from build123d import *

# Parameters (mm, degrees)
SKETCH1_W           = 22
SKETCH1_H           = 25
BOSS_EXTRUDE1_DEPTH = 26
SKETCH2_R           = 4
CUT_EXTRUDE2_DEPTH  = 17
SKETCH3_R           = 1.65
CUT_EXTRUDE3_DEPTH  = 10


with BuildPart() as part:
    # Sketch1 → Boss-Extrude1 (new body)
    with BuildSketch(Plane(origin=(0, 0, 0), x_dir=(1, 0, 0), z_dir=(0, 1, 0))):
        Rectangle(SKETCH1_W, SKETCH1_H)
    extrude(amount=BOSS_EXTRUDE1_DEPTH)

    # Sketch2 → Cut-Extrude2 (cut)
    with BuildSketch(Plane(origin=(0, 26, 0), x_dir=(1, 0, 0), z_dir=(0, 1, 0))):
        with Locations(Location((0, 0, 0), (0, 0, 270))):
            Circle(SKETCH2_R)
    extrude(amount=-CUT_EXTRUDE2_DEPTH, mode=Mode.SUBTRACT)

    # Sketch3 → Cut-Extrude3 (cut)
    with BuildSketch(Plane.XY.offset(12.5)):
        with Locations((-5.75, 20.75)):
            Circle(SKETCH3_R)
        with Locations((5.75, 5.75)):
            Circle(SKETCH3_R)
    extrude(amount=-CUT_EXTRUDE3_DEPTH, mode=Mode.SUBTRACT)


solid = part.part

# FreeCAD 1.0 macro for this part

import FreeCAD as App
import Part
import Sketcher
from FreeCAD import Vector


def add_polygon(sketch, points):
    """Adds a closed chain of lines whose ends are joined by coincident constraints."""
    first, n = sketch.GeometryCount, len(points)
    for a, b in zip(points, points[1:] + points[:1]):
        sketch.addGeometry(Part.LineSegment(App.Vector(*a, 0), App.Vector(*b, 0)), False)
    for i in range(n):
        sketch.addConstraint(Sketcher.Constraint("Coincident", first + i, 2, first + (i + 1) % n, 1))

doc = App.newDocument("Part")
body = doc.addObject("PartDesign::Body", "Body")

sketch1 = body.newObject("Sketcher::SketchObject", "Sketch")
sketch1.AttachmentSupport = (doc.getObject("XZ_Plane"), [""])
sketch1.MapMode = "FlatFace"
add_polygon(sketch1, [(-11, -12), (-11, 12), (11, 12), (11, -12)])
sketch1.addConstraint(Sketcher.Constraint("Vertical", 0))
sketch1.addConstraint(Sketcher.Constraint("Horizontal", 1))
sketch1.addConstraint(Sketcher.Constraint("Vertical", 2))
sketch1.addConstraint(Sketcher.Constraint("Horizontal", 3))
sketch1.addConstraint(Sketcher.Constraint("Symmetric", 0, 2, 2, 2, -1, 1))
sketch1.addConstraint(Sketcher.Constraint("DistanceX", 1, 1, 1, 2, 22.0))
sketch1.addConstraint(Sketcher.Constraint("DistanceY", 0, 1, 0, 2, 25.0))
pad1 = body.newObject("PartDesign::Pad", "Pad")
pad1.Profile = sketch1
pad1.Length = 26
pad1.Reversed = True

sketch2 = body.newObject("Sketcher::SketchObject", "Sketch001")
sketch2.AttachmentSupport = (doc.getObject("XZ_Plane"), [""])
sketch2.MapMode = "FlatFace"
sketch2.AttachmentOffset = App.Placement(Vector(0, 0, -26), App.Rotation())
sketch2.addGeometry(Part.Circle(Vector(0, 0, 0), Vector(0, 0, 1), 4), False)
sketch2.addConstraint(Sketcher.Constraint("Coincident", 0, 3, -1, 1))
sketch2.addConstraint(Sketcher.Constraint("Diameter", 0, 8.0))
pocket1 = body.newObject("PartDesign::Pocket", "Pocket")
pocket1.Profile = sketch2
pocket1.Length = 17
pocket1.Reversed = True

sketch3 = body.newObject("Sketcher::SketchObject", "Sketch002")
sketch3.AttachmentSupport = (doc.getObject("XY_Plane"), [""])
sketch3.MapMode = "FlatFace"
sketch3.AttachmentOffset = App.Placement(Vector(0, 0, 12.5), App.Rotation())
sketch3.addGeometry(Part.Circle(Vector(-5.8, 20.8, 0), Vector(0, 0, 1), 1.6), False)
sketch3.addGeometry(Part.Circle(Vector(5.8, 5.8, 0), Vector(0, 0, 1), 1.6), False)
sketch3.addConstraint(Sketcher.Constraint("Equal", 0, 1))
sketch3.addConstraint(Sketcher.Constraint("Diameter", 0, 3.3))
sketch3.addConstraint(Sketcher.Constraint("DistanceY", 1, 3, 0, 3, 15.0))
sketch3.addConstraint(Sketcher.Constraint("DistanceX", 0, 3, 1, 3, 11.5))
sketch3.addConstraint(Sketcher.Constraint("DistanceX", 0, 3, -1, 1, 5.75))
sketch3.addConstraint(Sketcher.Constraint("DistanceY", -1, 1, 0, 3, 20.75))
pocket2 = body.newObject("PartDesign::Pocket", "Pocket001")
pocket2.Profile = sketch3
pocket2.Length = 10

doc.recompute()
